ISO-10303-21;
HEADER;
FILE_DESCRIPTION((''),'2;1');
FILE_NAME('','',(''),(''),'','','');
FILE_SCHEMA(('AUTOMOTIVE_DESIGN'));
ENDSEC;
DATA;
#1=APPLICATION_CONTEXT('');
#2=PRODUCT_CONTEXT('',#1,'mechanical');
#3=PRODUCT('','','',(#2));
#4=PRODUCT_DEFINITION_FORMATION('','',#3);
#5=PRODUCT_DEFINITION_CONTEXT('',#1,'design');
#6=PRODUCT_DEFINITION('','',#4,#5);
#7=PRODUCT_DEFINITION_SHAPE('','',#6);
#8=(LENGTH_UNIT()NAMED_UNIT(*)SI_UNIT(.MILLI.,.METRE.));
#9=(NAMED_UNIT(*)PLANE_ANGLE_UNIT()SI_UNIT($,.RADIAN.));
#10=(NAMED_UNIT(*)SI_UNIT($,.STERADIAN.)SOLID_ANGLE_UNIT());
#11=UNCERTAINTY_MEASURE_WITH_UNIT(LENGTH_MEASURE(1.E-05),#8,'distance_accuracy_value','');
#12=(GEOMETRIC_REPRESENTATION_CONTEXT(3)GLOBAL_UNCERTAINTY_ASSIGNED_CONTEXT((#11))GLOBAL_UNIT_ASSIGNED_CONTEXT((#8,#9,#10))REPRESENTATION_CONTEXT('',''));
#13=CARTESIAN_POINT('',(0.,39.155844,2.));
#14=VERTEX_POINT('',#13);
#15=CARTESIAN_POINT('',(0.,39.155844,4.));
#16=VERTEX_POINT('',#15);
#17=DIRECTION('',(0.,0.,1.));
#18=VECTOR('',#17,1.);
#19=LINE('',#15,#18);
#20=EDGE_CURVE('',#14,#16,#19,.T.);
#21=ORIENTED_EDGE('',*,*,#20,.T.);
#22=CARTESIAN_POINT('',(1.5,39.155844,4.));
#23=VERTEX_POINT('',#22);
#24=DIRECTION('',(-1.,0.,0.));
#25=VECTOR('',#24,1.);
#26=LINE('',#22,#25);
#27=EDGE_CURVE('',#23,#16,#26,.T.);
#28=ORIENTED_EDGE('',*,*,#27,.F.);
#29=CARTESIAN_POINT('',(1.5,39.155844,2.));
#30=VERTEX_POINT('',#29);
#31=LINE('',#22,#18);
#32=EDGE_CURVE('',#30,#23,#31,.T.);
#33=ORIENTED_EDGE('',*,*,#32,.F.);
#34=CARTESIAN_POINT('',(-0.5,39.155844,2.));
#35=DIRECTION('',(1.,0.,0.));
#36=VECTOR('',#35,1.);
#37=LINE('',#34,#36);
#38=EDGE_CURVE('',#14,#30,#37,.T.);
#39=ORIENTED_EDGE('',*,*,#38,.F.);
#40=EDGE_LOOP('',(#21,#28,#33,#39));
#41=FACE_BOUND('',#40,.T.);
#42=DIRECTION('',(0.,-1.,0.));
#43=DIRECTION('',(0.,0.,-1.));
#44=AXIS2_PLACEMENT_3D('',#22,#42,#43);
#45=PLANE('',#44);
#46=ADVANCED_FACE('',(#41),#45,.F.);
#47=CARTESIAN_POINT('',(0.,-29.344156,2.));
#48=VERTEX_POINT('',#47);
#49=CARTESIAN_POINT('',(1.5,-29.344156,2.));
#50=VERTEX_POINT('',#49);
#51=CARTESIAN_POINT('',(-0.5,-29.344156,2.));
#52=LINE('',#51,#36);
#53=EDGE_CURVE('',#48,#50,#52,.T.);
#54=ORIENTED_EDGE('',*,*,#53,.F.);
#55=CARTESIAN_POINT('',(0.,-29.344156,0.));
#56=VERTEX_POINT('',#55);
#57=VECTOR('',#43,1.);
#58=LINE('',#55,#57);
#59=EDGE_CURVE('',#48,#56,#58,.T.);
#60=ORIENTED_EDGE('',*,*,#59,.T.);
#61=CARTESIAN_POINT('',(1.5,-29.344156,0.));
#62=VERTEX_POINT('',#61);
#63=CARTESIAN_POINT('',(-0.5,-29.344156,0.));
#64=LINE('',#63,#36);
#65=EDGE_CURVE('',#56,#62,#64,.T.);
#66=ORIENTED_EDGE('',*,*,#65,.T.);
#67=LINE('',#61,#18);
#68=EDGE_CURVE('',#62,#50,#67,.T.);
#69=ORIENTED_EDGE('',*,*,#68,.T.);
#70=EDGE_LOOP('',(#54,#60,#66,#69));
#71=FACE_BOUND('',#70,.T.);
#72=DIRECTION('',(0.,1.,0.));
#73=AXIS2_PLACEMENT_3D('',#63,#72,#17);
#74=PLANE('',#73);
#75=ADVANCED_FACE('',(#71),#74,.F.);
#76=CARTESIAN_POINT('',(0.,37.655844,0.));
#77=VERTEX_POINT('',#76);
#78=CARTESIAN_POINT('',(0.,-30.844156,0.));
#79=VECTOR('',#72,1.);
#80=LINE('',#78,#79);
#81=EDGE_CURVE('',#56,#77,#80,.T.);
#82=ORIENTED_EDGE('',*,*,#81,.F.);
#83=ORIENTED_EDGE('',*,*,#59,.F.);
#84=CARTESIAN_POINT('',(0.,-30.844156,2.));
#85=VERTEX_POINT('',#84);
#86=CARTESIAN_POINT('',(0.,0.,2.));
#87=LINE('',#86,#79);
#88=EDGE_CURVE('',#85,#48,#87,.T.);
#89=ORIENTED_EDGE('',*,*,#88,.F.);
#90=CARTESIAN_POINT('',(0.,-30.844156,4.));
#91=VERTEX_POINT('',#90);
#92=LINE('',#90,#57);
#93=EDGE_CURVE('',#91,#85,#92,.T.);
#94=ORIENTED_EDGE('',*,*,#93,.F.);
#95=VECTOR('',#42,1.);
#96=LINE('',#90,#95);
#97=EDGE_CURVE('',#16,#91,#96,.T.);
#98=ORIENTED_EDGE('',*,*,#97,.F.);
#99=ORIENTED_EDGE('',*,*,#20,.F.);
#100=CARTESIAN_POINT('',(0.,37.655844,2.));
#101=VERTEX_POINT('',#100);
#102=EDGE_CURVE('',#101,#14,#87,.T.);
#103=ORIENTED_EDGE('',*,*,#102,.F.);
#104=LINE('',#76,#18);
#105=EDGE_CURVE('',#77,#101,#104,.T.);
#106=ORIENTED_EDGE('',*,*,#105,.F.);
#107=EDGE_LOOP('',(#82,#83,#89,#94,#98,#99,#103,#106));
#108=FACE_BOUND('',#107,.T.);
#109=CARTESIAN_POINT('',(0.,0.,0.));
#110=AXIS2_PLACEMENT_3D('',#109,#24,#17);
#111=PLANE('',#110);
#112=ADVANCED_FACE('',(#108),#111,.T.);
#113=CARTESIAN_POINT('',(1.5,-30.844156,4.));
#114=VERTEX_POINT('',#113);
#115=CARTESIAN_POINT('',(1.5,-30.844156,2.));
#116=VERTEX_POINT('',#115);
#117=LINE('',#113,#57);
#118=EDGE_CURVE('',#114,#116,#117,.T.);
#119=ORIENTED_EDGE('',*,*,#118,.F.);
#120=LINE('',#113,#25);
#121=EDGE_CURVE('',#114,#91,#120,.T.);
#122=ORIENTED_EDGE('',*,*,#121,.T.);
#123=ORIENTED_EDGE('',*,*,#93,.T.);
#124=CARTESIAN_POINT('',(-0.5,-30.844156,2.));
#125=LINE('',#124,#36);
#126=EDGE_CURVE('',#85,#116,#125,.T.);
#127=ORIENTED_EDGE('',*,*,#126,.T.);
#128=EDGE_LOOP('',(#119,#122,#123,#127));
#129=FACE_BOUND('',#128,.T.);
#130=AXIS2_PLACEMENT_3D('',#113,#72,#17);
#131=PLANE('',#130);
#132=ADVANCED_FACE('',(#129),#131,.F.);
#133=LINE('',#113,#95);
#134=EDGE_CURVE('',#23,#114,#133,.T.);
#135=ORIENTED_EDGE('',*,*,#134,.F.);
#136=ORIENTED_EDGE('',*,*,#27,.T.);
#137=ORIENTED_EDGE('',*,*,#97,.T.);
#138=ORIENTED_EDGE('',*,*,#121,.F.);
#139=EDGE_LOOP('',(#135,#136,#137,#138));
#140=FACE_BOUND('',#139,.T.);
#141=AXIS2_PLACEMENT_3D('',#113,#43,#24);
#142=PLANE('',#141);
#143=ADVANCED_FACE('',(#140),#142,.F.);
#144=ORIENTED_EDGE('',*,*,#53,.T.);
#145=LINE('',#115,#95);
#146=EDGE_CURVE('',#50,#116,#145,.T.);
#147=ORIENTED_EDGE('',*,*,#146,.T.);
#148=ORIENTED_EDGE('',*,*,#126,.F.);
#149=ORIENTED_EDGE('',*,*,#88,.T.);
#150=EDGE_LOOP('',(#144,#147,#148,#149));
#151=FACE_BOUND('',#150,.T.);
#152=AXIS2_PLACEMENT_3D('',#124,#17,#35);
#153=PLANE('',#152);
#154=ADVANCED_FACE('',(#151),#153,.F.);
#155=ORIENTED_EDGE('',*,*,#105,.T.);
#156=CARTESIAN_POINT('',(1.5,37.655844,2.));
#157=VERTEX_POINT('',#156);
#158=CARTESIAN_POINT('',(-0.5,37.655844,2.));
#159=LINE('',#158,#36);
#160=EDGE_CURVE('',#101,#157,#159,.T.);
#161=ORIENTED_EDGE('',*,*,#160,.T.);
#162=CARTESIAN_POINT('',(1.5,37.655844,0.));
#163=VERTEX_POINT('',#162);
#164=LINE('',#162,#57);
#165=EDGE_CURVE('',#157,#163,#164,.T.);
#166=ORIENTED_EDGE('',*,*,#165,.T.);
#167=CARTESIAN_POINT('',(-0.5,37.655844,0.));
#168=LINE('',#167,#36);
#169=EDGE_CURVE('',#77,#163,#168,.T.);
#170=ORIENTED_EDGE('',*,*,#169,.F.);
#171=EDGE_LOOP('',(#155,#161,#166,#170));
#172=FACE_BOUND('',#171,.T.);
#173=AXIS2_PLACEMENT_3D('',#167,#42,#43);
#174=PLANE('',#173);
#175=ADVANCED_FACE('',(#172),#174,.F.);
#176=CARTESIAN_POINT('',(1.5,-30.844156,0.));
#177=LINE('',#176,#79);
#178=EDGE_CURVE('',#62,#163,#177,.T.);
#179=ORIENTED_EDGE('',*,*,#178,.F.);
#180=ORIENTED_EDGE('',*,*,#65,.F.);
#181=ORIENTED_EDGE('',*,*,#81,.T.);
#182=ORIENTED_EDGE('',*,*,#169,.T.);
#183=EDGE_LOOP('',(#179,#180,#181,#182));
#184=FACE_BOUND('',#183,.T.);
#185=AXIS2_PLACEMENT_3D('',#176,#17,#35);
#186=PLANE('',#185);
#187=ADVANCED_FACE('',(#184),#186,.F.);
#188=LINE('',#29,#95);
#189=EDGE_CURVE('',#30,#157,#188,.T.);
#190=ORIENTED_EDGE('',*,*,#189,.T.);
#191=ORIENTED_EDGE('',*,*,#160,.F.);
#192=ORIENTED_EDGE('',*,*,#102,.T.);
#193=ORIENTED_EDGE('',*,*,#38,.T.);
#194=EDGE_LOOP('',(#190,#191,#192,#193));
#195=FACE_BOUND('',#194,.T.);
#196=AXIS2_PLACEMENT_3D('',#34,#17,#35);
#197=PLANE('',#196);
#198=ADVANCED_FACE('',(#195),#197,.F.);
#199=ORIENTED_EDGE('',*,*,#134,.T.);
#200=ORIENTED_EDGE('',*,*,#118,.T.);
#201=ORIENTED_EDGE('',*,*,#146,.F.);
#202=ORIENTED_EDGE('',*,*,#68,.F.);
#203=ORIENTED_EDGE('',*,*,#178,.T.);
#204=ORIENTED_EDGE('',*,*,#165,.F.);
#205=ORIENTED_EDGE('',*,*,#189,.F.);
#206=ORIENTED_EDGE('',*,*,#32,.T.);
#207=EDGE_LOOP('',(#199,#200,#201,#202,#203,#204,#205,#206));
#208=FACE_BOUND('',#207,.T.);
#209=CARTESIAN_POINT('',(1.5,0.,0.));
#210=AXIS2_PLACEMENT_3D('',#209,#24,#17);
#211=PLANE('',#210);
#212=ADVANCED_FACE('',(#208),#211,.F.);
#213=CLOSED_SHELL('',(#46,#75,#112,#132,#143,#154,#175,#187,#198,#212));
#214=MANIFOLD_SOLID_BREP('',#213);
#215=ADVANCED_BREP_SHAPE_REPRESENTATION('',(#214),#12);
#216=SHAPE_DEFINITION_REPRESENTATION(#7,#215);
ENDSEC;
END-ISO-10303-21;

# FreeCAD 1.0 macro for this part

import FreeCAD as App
import Part
import Sketcher
from FreeCAD import Vector
Q = App.Units.Quantity

doc = App.newDocument("Part")
body = doc.addObject("PartDesign::Body", "Body")

sketch1 = body.newObject("Sketcher::SketchObject", "Sketch")
sketch1.AttachmentSupport = (doc.getObject("YZ_Plane"), [""])
sketch1.MapMode = "FlatFace"
sketch1.addGeometry([
    Part.LineSegment(Vector(39.2, 4, 0), Vector(-30.8, 4, 0)),
    Part.LineSegment(Vector(-30.8, 4, 0), Vector(-30.8, 0, 0)),
    Part.LineSegment(Vector(-30.8, 0, 0), Vector(39.2, 0, 0)),
    Part.LineSegment(Vector(39.2, 0, 0), Vector(39.2, 4, 0)),
], False)
sketch1.addConstraint([
    Sketcher.Constraint("Coincident", 0, 2, 1, 1),
    Sketcher.Constraint("Coincident", 1, 2, 2, 1),
    Sketcher.Constraint("Coincident", 2, 2, 3, 1),
    Sketcher.Constraint("Coincident", 3, 2, 0, 1),
    Sketcher.Constraint("Horizontal", 0),
    Sketcher.Constraint("Vertical", 1),
    Sketcher.Constraint("Horizontal", 2),
    Sketcher.Constraint("Vertical", 3),
    Sketcher.Constraint("PointOnObject", 1, 2, -1),
    Sketcher.Constraint("DistanceX", 0, 2, 0, 1, Q("70 mm")),
    Sketcher.Constraint("DistanceY", 1, 2, 1, 1, Q("4 mm")),
    Sketcher.Constraint("DistanceX", 0, 2, -1, 1, Q("30.844156 mm")),
])
pad1 = body.newObject("PartDesign::Pad", "Pad")
pad1.Profile = sketch1
pad1.Length = 1.5

sketch2 = body.newObject("Sketcher::SketchObject", "Sketch001")
sketch2.AttachmentSupport = (doc.getObject("YZ_Plane"), [""])
sketch2.MapMode = "FlatFace"
sketch2.AttachmentOffset = App.Placement(Vector(0, 0, 1.5), App.Rotation())
sketch2.addGeometry([
    Part.LineSegment(Vector(39.2, 2, 0), Vector(37.7, 2, 0)),
    Part.LineSegment(Vector(37.7, 2, 0), Vector(37.7, 0, 0)),
    Part.LineSegment(Vector(37.7, 0, 0), Vector(39.2, 0, 0)),
    Part.LineSegment(Vector(39.2, 0, 0), Vector(39.2, 2, 0)),
    Part.LineSegment(Vector(-29.3, 2, 0), Vector(-30.8, 2, 0)),
    Part.LineSegment(Vector(-30.8, 2, 0), Vector(-30.8, 0, 0)),
    Part.LineSegment(Vector(-30.8, 0, 0), Vector(-29.3, 0, 0)),
    Part.LineSegment(Vector(-29.3, 0, 0), Vector(-29.3, 2, 0)),
], False)
sketch2.addConstraint([
    Sketcher.Constraint("Coincident", 0, 2, 1, 1),
    Sketcher.Constraint("Coincident", 1, 2, 2, 1),
    Sketcher.Constraint("Coincident", 2, 2, 3, 1),
    Sketcher.Constraint("Coincident", 3, 2, 0, 1),
    Sketcher.Constraint("Coincident", 4, 2, 5, 1),
    Sketcher.Constraint("Coincident", 5, 2, 6, 1),
    Sketcher.Constraint("Coincident", 6, 2, 7, 1),
    Sketcher.Constraint("Coincident", 7, 2, 4, 1),
    Sketcher.Constraint("Horizontal", 0),
    Sketcher.Constraint("Vertical", 1),
    Sketcher.Constraint("Horizontal", 2),
    Sketcher.Constraint("Vertical", 3),
    Sketcher.Constraint("Horizontal", 4),
    Sketcher.Constraint("Vertical", 5),
    Sketcher.Constraint("Horizontal", 6),
    Sketcher.Constraint("Vertical", 7),
    Sketcher.Constraint("PointOnObject", 1, 2, -1),
    Sketcher.Constraint("PointOnObject", 5, 2, -1),
    Sketcher.Constraint("Horizontal", 3, 2, 4, 2),
    Sketcher.Constraint("Equal", 2, 4),
    Sketcher.Constraint("DistanceY", 1, 2, 1, 1, Q("2 mm")),
    Sketcher.Constraint("DistanceX", 0, 2, 0, 1, Q("1.5 mm")),
    Sketcher.Constraint("DistanceX", 4, 2, 3, 2, Q("70 mm")),
    Sketcher.Constraint("DistanceX", -1, 1, 0, 2, Q("37.655844 mm")),
])
pocket1 = body.newObject("PartDesign::Pocket", "Pocket")
pocket1.Profile = sketch2
pocket1.Length = 2

doc.recompute()
